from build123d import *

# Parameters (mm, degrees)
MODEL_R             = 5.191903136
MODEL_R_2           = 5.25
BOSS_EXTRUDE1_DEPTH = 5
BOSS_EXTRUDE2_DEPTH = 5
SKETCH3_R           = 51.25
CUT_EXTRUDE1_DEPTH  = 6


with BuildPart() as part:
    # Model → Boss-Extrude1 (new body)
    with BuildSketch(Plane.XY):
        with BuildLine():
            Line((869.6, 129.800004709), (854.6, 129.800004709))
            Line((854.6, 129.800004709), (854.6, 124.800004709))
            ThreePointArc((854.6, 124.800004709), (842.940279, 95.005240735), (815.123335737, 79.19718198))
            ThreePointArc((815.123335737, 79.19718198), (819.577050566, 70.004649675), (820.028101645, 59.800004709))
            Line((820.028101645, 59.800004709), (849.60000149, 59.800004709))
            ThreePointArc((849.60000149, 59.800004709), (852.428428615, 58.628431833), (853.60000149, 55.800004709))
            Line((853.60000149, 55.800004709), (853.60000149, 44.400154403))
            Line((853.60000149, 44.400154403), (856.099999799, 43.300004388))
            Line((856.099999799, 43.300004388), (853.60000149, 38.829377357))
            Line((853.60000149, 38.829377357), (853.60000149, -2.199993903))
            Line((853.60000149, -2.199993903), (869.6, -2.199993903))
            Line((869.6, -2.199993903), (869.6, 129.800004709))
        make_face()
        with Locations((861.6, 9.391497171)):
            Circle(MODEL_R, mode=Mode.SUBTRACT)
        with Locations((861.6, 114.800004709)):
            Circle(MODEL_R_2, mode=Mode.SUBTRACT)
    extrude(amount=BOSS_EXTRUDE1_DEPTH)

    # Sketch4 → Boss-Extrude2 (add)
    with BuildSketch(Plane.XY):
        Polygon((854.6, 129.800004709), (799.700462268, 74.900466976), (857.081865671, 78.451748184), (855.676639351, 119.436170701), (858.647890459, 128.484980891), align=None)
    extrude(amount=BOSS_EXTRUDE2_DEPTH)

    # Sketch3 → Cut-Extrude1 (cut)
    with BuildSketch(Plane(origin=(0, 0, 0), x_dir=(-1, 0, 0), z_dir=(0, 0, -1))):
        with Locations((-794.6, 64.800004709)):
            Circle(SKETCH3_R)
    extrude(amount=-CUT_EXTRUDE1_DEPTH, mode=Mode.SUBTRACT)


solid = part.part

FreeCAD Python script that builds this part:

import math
import FreeCAD as App
import Part
import Sketcher

V = App.Vector
Q = App.Units.Quantity

doc = App.newDocument("Part")
params = doc.addObject("Spreadsheet::Sheet", "Params")
for row, (alias, value) in enumerate([
    ("sketch1_radius", "4 mm"),
    ("sketch1_diameter", "10.5 mm"),
    ("sketch1_width", "15 mm"),
    ("sketch1_width2", "15.999999 mm"),
    ("sketch1_height", "5 mm"),
    ("pad1_length", "5 mm"),
    ("pad2_length", "5 mm"),
    ("sketch3_diameter", "102.5 mm"),
    ("pocket1_length", "6 mm"),
], start=1):
    params.set(f"A{row}", alias)
    params.set(f"B{row}", "=" + value)
    params.setAlias(f"B{row}", alias)

body = doc.addObject("PartDesign::Body", "Body")

sketch1 = doc.addObject("Sketcher::SketchObject", "Sketch")
body.addObject(sketch1)
sketch1.AttachmentSupport = (doc.XY_Plane, [""])
sketch1.MapMode = "FlatFace"
sketch1.addGeometry([
    Part.LineSegment(V(869.6, 129.8, 0), V(854.6, 129.8, 0)),
    Part.LineSegment(V(854.6, 129.8, 0), V(854.6, 124.8, 0)),
    Part.ArcOfCircle(Part.Circle(V(806.7, 126.4, 0), V(0, 0, 1), 47.9), math.radians(-80), math.radians(-2)),
    Part.ArcOfCircle(Part.Circle(V(795.1, 63.8, 0), V(0, 0, 1), 25.3), math.radians(-9), math.radians(38)),
    Part.LineSegment(V(820, 59.8, 0), V(849.6, 59.8, 0)),
    Part.ArcOfCircle(Part.Circle(V(849.6, 55.8, 0), V(0, 0, 1), 4), math.radians(0), math.radians(90)),
    Part.LineSegment(V(853.6, 55.8, 0), V(853.6, 44.4, 0)),
    Part.LineSegment(V(853.6, 44.4, 0), V(856.1, 43.3, 0)),
    Part.LineSegment(V(856.1, 43.3, 0), V(853.6, 38.8, 0)),
    Part.LineSegment(V(853.6, 38.8, 0), V(853.6, -2.2, 0)),
    Part.LineSegment(V(853.6, -2.2, 0), V(869.6, -2.2, 0)),
    Part.LineSegment(V(869.6, -2.2, 0), V(869.6, 129.8, 0)),
    Part.Circle(V(861.6, 9.4, 0), V(0, 0, 1), 5.2),
    Part.Circle(V(861.6, 114.8, 0), V(0, 0, 1), 5.2),
], False)
sketch1.addConstraint([
    Sketcher.Constraint("Coincident", 0, 2, 1, 1),
    Sketcher.Constraint("Coincident", 1, 2, 2, 2),
    Sketcher.Constraint("Coincident", 2, 1, 3, 2),
    Sketcher.Constraint("Coincident", 3, 1, 4, 1),
    Sketcher.Constraint("Tangent", 4, 2, 5, 2),
    Sketcher.Constraint("Tangent", 5, 1, 6, 1),
    Sketcher.Constraint("Coincident", 6, 2, 7, 1),
    Sketcher.Constraint("Coincident", 7, 2, 8, 1),
    Sketcher.Constraint("Coincident", 8, 2, 9, 1),
    Sketcher.Constraint("Coincident", 9, 2, 10, 1),
    Sketcher.Constraint("Coincident", 10, 2, 11, 1),
    Sketcher.Constraint("Coincident", 11, 2, 0, 1),
    Sketcher.Constraint("Horizontal", 0),
    Sketcher.Constraint("Vertical", 1),
    Sketcher.Constraint("Horizontal", 4),
    Sketcher.Constraint("Vertical", 6),
    Sketcher.Constraint("Vertical", 9),
    Sketcher.Constraint("Horizontal", 10),
    Sketcher.Constraint("Vertical", 11),
    Sketcher.Constraint("Vertical", 12, 3, 13, 3),
    Sketcher.Constraint("Vertical", 6, 2, 8, 2),
    Sketcher.Constraint("Radius", 5, 4.0),
    Sketcher.Constraint("Diameter", 13, 10.5),
    Sketcher.Constraint("DistanceX", 0, 2, 0, 1, 15.0),
    Sketcher.Constraint("DistanceX", 10, 1, 10, 2, 15.999999),
    Sketcher.Constraint("DistanceY", 1, 2, 1, 1, 5.0),
    Sketcher.Constraint("DistanceY", 11, 1, 11, 2, 131.999999),
    Sketcher.Constraint("DistanceX", 5, 3, 12, 3, 11.999999),
    Sketcher.Constraint("DistanceY", 5, 3, 13, 3, 59.0),
    Sketcher.Constraint("DistanceY", 13, 3, 0, 2, 15.0),
    Sketcher.Constraint("DistanceX", -1, 1, 5, 3, 849.600001),
    Sketcher.Constraint("DistanceX", -1, 1, 7, 2, 856.1),
    Sketcher.Constraint("Radius", 3, 25.271799),
    Sketcher.Constraint("DistanceY", 7, 2, 5, 1, 12.5),
    Sketcher.Constraint("Radius", 2, 47.90217),
    Sketcher.Constraint("Diameter", 12, 10.383806),
    Sketcher.Constraint("DistanceX", 4, 1, 4, 2, 29.5719),
    Sketcher.Constraint("DistanceY", 6, 2, 6, 1, 11.39985),
    Sketcher.Constraint("DistanceY", 9, 2, 9, 1, 41.029371),
    Sketcher.Constraint("DistanceX", -1, 1, 3, 3, 795.076379),
    Sketcher.Constraint("DistanceY", -1, 1, 2, 1, 79.197182),
    Sketcher.Constraint("DistanceY", 3, 3, 2, 3, 62.547651),
    Sketcher.Constraint("DistanceY", 12, 3, 3, 3, 54.417918),
])
sketch1.setExpression("Constraints[21]", "Params.sketch1_radius")
sketch1.setExpression("Constraints[22]", "Params.sketch1_diameter")
sketch1.setExpression("Constraints[23]", "Params.sketch1_width")
sketch1.setExpression("Constraints[24]", "Params.sketch1_width2")
sketch1.setExpression("Constraints[25]", "Params.sketch1_height")
pad1 = doc.addObject("PartDesign::Pad", "Pad")
body.addObject(pad1)
pad1.Profile = sketch1
pad1.setExpression("Length", "Params.pad1_length")

sketch2 = doc.addObject("Sketcher::SketchObject", "Sketch001")
body.addObject(sketch2)
sketch2.AttachmentSupport = (doc.XY_Plane, [""])
sketch2.MapMode = "FlatFace"
sketch2.addGeometry([
    Part.LineSegment(V(854.6, 129.8, 0), V(799.7, 74.9, 0)),
    Part.LineSegment(V(799.7, 74.9, 0), V(857.1, 78.5, 0)),
    Part.LineSegment(V(857.1, 78.5, 0), V(855.7, 119.4, 0)),
    Part.LineSegment(V(855.7, 119.4, 0), V(858.6, 128.5, 0)),
    Part.LineSegment(V(858.6, 128.5, 0), V(854.6, 129.8, 0)),
], False)
sketch2.addConstraint([
    Sketcher.Constraint("Coincident", 0, 2, 1, 1),
    Sketcher.Constraint("Coincident", 1, 2, 2, 1),
    Sketcher.Constraint("Coincident", 2, 2, 3, 1),
    Sketcher.Constraint("Coincident", 3, 2, 4, 1),
    Sketcher.Constraint("Coincident", 4, 2, 0, 1),
    Sketcher.Constraint("Angle", 0, Q("-135 deg")),
    Sketcher.Constraint("DistanceX", -1, 1, 4, 2, 854.6),
    Sketcher.Constraint("Distance", 0, 77.639671),
    Sketcher.Constraint("Distance", 1, 57.491191),
    Sketcher.Constraint("DistanceY", -1, 1, 1, 2, 78.451748),
    Sketcher.Constraint("DistanceX", -1, 1, 2, 2, 855.676639),
    Sketcher.Constraint("DistanceY", -1, 1, 2, 2, 119.436171),
    Sketcher.Constraint("DistanceX", -1, 1, 3, 2, 858.64789),
    Sketcher.Constraint("DistanceY", -1, 1, 3, 2, 128.484981),
    Sketcher.Constraint("DistanceY", 0, 2, 1, 2, 3.551281),
])
pad2 = doc.addObject("PartDesign::Pad", "Pad001")
body.addObject(pad2)
pad2.Profile = sketch2
pad2.setExpression("Length", "Params.pad2_length")

sketch3 = doc.addObject("Sketcher::SketchObject", "Sketch002")
body.addObject(sketch3)
sketch3.AttachmentSupport = (doc.XY_Plane, [""])
sketch3.MapMode = "FlatFace"
sketch3.addGeometry(Part.Circle(V(795, 65, 0), V(0, 0, 1), 51), False)
sketch3.addConstraint([
    Sketcher.Constraint("Diameter", 0, 102.5),
    Sketcher.Constraint("DistanceX", -1, 1, 0, 3, 794.6),
    Sketcher.Constraint("DistanceY", -1, 1, 0, 3, 64.800005),
])
sketch3.setExpression("Constraints[0]", "Params.sketch3_diameter")
pocket1 = doc.addObject("PartDesign::Pocket", "Pocket")
body.addObject(pocket1)
pocket1.Profile = sketch3
pocket1.setExpression("Length", "Params.pocket1_length")
pocket1.Reversed = True

doc.recompute()
